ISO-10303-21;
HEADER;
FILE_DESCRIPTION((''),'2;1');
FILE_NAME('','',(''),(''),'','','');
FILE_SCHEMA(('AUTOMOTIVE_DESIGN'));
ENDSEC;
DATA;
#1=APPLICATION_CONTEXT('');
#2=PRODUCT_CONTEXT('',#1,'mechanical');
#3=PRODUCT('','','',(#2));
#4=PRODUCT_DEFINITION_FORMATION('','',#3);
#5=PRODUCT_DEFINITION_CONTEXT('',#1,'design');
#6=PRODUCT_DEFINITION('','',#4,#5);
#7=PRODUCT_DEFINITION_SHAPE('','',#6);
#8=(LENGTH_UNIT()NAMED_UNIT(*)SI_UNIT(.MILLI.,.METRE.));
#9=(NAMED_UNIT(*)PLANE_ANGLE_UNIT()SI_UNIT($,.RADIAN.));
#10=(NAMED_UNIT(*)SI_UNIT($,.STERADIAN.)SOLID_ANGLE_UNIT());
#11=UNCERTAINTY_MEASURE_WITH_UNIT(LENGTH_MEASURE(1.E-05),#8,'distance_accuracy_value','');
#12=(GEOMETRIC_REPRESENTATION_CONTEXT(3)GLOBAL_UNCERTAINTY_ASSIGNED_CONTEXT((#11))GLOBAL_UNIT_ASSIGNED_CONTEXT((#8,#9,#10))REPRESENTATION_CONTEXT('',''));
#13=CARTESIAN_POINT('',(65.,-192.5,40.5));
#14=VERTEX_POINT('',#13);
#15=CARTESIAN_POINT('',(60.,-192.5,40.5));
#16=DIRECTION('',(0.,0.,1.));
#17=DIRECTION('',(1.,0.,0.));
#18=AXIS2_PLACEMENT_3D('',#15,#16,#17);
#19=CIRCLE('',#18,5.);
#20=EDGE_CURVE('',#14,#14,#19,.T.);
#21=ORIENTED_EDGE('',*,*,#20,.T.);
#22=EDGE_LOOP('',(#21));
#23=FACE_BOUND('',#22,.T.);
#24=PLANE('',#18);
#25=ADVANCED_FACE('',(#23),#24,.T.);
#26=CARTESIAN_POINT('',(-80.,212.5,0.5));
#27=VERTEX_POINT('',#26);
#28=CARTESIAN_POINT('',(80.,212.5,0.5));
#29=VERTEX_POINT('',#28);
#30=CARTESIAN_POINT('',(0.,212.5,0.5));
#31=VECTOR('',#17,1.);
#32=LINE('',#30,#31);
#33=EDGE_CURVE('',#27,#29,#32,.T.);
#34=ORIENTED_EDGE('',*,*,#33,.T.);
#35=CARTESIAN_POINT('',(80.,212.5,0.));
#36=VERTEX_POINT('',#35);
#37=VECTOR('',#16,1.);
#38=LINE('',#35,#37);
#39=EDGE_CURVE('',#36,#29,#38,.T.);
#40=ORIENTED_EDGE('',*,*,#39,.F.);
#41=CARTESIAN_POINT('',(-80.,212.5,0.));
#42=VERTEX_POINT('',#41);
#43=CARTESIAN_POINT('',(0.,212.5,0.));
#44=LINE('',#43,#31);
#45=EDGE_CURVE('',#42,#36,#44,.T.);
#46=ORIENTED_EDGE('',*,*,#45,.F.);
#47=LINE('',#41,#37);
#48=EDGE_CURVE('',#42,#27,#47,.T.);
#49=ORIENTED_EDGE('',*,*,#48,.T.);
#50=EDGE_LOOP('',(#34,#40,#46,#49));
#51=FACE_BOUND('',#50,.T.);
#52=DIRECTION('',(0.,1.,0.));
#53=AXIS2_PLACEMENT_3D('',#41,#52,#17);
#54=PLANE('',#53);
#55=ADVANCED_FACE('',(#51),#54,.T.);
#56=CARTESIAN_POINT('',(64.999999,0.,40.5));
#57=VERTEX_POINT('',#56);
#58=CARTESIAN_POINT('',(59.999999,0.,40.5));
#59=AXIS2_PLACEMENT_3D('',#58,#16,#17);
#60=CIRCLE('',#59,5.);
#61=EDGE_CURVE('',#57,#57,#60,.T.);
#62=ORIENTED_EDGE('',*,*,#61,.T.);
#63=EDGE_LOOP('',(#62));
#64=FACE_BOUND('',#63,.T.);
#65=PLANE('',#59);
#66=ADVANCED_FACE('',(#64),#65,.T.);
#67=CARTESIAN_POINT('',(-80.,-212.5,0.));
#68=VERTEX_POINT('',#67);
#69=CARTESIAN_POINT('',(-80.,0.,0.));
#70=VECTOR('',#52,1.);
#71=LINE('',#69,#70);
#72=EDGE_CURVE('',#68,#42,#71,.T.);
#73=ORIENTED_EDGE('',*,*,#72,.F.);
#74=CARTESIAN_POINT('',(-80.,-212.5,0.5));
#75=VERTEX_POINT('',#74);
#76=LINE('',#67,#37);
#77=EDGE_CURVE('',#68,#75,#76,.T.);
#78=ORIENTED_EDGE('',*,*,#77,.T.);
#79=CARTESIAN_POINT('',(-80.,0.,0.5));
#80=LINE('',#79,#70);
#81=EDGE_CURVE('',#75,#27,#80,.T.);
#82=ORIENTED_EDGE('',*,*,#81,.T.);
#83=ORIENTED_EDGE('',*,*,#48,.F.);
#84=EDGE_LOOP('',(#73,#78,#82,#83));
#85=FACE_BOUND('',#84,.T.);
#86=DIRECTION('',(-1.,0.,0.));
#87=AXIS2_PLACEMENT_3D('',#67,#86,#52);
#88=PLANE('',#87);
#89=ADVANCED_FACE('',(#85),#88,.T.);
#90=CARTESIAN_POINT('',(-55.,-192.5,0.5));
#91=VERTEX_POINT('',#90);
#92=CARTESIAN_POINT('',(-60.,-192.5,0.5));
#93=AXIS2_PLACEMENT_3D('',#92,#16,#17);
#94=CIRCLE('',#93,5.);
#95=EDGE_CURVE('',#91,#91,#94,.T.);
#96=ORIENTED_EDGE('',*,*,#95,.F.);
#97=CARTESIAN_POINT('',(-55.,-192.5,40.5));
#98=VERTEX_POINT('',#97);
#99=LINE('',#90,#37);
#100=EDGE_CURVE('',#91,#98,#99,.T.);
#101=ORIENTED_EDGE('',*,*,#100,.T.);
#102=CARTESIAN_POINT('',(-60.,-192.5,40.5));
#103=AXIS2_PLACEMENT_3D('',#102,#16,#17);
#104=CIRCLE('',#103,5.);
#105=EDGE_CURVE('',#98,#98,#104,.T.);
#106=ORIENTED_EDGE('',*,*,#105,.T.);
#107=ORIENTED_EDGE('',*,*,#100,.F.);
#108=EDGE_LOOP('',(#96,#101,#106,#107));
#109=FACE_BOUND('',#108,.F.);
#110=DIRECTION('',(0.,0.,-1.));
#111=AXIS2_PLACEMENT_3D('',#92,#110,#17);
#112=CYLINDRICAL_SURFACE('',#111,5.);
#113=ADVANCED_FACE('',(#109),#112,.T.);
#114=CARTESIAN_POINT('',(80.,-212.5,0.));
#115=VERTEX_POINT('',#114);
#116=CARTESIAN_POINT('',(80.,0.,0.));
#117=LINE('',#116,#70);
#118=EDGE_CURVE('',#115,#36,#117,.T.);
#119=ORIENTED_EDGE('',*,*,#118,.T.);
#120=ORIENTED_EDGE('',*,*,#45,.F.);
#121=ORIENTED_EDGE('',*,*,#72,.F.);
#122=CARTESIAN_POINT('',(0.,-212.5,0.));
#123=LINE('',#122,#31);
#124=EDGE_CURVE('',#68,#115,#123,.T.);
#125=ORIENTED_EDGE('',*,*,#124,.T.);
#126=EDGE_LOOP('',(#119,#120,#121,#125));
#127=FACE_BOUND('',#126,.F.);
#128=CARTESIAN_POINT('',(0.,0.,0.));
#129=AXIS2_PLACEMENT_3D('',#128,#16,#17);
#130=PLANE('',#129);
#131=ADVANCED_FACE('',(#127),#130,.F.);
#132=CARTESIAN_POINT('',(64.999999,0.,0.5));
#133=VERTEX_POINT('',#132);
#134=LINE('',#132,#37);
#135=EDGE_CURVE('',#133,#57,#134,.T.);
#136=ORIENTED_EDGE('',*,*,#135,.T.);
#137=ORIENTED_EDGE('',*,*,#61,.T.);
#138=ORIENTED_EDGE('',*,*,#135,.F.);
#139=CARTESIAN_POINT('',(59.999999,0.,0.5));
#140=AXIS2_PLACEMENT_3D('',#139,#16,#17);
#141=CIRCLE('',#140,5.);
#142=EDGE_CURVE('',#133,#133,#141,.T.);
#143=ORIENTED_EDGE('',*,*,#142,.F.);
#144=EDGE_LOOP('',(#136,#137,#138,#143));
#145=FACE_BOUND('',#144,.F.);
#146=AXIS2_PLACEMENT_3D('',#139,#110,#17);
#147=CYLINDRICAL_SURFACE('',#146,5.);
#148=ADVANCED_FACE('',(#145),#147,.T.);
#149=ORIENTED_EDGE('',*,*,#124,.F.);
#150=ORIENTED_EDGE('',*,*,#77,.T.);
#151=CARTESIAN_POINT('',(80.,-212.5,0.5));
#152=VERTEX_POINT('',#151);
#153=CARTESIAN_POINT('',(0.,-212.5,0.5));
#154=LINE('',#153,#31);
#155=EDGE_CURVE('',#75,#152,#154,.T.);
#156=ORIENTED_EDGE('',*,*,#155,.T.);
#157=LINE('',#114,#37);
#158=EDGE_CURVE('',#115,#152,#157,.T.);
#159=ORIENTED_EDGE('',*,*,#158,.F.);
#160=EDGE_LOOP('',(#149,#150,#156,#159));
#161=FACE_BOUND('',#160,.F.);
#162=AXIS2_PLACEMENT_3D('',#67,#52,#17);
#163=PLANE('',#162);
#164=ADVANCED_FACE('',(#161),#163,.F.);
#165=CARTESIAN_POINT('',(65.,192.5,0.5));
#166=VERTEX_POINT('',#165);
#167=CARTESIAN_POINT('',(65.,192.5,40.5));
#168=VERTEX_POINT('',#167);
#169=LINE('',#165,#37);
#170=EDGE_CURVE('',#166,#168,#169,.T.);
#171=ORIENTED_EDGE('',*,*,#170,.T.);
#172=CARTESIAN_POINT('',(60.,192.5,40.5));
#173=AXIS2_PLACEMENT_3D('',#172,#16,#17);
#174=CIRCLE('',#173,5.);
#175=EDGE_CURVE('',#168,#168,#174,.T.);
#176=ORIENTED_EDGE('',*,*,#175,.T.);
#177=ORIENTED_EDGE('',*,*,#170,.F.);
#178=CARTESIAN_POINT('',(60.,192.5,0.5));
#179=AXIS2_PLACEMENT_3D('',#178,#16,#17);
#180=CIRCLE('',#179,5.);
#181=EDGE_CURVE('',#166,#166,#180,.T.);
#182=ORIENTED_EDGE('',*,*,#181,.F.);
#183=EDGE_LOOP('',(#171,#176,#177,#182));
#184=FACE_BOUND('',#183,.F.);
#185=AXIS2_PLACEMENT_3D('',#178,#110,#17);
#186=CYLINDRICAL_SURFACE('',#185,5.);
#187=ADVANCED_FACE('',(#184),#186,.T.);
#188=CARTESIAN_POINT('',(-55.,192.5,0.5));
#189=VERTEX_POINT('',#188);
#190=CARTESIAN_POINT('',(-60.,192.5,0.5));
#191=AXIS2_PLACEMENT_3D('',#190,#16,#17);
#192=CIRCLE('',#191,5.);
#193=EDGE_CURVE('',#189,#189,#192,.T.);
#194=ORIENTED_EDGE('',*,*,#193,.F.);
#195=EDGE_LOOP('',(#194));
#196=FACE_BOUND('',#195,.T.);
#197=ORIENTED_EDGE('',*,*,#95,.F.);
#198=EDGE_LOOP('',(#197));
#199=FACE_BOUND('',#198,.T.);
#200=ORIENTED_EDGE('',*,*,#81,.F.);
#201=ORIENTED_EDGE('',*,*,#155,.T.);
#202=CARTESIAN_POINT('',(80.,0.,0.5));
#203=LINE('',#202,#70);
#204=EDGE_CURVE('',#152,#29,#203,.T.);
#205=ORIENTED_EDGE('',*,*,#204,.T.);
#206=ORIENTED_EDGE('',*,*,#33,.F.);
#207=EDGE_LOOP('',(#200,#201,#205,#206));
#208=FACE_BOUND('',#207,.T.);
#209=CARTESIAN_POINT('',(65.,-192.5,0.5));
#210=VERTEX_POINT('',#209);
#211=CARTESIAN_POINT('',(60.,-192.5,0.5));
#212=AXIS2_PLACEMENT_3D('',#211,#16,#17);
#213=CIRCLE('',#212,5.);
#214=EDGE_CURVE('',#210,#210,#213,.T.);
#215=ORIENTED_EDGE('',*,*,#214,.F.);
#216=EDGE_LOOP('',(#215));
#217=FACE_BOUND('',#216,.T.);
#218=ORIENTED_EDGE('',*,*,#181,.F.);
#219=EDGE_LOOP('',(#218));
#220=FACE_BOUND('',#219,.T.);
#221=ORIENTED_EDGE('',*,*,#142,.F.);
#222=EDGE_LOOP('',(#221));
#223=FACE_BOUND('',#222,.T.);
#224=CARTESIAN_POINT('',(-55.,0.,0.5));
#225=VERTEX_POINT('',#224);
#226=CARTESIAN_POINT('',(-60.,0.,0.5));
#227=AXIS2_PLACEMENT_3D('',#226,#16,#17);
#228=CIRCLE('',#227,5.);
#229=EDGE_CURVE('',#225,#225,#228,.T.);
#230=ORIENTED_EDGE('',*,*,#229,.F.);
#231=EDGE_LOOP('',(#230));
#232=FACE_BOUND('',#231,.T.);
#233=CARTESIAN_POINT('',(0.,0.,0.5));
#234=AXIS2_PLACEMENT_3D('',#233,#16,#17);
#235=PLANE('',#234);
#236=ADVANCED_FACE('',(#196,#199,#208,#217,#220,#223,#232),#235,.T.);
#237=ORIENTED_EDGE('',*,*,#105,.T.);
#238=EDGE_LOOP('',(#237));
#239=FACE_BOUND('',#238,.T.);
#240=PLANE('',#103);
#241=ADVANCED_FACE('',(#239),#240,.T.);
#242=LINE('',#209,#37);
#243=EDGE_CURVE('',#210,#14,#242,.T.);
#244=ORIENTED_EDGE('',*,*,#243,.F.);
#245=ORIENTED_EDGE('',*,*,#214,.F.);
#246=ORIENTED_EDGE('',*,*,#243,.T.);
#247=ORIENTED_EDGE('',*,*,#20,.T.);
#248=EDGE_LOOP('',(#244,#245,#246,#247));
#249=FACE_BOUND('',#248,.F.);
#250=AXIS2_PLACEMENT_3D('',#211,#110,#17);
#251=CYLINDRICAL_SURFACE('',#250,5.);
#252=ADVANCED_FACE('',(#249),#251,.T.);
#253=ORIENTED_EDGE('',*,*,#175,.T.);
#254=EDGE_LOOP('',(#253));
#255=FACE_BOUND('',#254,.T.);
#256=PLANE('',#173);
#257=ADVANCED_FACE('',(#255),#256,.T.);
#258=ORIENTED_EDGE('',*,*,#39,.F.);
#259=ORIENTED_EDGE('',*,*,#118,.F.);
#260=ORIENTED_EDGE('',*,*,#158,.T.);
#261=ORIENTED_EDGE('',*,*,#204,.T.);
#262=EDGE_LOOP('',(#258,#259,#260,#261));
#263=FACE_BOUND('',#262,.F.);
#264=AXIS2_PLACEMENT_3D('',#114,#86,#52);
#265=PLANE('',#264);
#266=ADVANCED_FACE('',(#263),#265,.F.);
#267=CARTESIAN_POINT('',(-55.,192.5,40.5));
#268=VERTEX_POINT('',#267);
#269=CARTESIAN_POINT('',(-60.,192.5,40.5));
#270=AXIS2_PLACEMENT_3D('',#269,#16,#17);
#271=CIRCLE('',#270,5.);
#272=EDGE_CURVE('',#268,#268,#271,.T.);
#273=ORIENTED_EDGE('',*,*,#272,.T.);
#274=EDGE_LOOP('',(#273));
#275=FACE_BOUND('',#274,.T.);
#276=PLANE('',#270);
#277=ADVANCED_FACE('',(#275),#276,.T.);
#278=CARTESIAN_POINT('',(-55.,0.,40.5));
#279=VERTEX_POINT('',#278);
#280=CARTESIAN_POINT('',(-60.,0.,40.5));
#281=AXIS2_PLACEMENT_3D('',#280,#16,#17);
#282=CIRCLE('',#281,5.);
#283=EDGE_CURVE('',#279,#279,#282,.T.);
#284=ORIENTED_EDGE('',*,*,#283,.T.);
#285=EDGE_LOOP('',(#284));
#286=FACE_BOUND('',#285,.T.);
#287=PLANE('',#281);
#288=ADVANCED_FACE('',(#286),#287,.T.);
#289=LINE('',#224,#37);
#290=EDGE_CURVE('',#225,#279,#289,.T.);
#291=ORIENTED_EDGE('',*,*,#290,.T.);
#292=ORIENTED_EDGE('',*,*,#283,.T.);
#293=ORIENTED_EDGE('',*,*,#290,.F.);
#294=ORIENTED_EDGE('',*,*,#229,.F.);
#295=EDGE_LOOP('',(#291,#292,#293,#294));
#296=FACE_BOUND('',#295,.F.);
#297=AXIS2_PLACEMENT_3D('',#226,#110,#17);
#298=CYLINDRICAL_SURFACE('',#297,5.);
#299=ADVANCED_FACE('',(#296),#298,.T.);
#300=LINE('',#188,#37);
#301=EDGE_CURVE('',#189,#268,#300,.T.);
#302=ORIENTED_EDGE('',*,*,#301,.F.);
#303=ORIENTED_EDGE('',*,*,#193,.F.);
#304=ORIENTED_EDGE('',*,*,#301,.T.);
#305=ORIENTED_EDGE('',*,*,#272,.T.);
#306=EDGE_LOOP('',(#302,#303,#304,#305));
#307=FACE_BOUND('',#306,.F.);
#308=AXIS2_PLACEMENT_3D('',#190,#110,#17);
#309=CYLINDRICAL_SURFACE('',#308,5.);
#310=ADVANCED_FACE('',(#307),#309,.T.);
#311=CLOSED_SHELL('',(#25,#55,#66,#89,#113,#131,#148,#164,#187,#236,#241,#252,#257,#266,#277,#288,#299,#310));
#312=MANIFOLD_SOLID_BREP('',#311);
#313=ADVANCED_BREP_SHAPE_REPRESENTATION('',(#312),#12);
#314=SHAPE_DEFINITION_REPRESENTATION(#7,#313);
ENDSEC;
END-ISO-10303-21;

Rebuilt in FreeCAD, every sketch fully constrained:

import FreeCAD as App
import Part
import Sketcher
from FreeCAD import Vector
Q = App.Units.Quantity


def add_polygon(sketch, points):
    """Adds a closed chain of lines whose ends are joined by coincident constraints."""
    first, n = sketch.GeometryCount, len(points)
    for a, b in zip(points, points[1:] + points[:1]):
        sketch.addGeometry(Part.LineSegment(App.Vector(*a, 0), App.Vector(*b, 0)), False)
    for i in range(n):
        sketch.addConstraint(Sketcher.Constraint("Coincident", first + i, 2, first + (i + 1) % n, 1))

doc = App.newDocument("Part")
params = doc.addObject("Spreadsheet::Sheet", "Params")
for row, (alias, value) in enumerate([
    ("sketch1_width", "160 mm"),
    ("sketch1_height", "425 mm"),
    ("pad1_length", "0.5 mm"),
    ("sketch2_diameter", "10 mm"),
    ("pad2_length", "40 mm"),
], start=1):
    params.set(f"A{row}", alias)
    params.set(f"B{row}", "=" + value)
    params.setAlias(f"B{row}", alias)

body = doc.addObject("PartDesign::Body", "Body")

sketch1 = body.newObject("Sketcher::SketchObject", "Sketch")
sketch1.AttachmentSupport = (doc.getObject("XY_Plane"), [""])
sketch1.MapMode = "FlatFace"
add_polygon(sketch1, [(-80, 212), (-80, -212), (80, -212), (80, 212)])
sketch1.addConstraint(Sketcher.Constraint("Vertical", 0))
sketch1.addConstraint(Sketcher.Constraint("Horizontal", 1))
sketch1.addConstraint(Sketcher.Constraint("Vertical", 2))
sketch1.addConstraint(Sketcher.Constraint("Horizontal", 3))
sketch1.addConstraint(Sketcher.Constraint("Symmetric", 0, 2, 2, 2, -1, 1))
sketch1.addConstraint(Sketcher.Constraint("DistanceX", 1, 1, 1, 2, Q("160 mm")))
sketch1.addConstraint(Sketcher.Constraint("DistanceY", 0, 2, 0, 1, Q("425 mm")))
sketch1.setExpression("Constraints[9]", "Params.sketch1_width")
sketch1.setExpression("Constraints[10]", "Params.sketch1_height")
pad1 = body.newObject("PartDesign::Pad", "Pad")
pad1.Profile = sketch1
pad1.setExpression("Length", "Params.pad1_length")

sketch2 = body.newObject("Sketcher::SketchObject", "Sketch001")
sketch2.AttachmentSupport = (doc.getObject("XY_Plane"), [""])
sketch2.MapMode = "FlatFace"
sketch2.AttachmentOffset = App.Placement(Vector(0, 0, 0.5), App.Rotation())
sketch2.addGeometry(Part.Circle(Vector(-60, 192, 0), Vector(0, 0, 1), 5), False)
sketch2.addGeometry(Part.Circle(Vector(60, 192, 0), Vector(0, 0, 1), 5), False)
sketch2.addGeometry(Part.Circle(Vector(60, -192, 0), Vector(0, 0, 1), 5), False)
sketch2.addGeometry(Part.Circle(Vector(-60, -192, 0), Vector(0, 0, 1), 5), False)
sketch2.addGeometry(Part.Circle(Vector(-60, 0, 0), Vector(0, 0, 1), 5), False)
sketch2.addGeometry(Part.Circle(Vector(60, 0, 0), Vector(0, 0, 1), 5), False)
sketch2.addConstraint(Sketcher.Constraint("Equal", 0, 1))
sketch2.addConstraint(Sketcher.Constraint("Equal", 1, 2))
sketch2.addConstraint(Sketcher.Constraint("Equal", 2, 3))
sketch2.addConstraint(Sketcher.Constraint("Equal", 3, 4))
sketch2.addConstraint(Sketcher.Constraint("Equal", 4, 5))
sketch2.addConstraint(Sketcher.Constraint("Symmetric", 0, 3, 2, 3, -1, 1))
sketch2.addConstraint(Sketcher.Constraint("Symmetric", 1, 3, 3, 3, -1, 1))
sketch2.addConstraint(Sketcher.Constraint("Symmetric", 4, 3, 5, 3, -1, 1))
sketch2.addConstraint(Sketcher.Constraint("Symmetric", 0, 3, 1, 3, -2))
sketch2.addConstraint(Sketcher.Constraint("PointOnObject", 4, 3, -1))
sketch2.addConstraint(Sketcher.Constraint("Vertical", 3, 3, 4, 3))
sketch2.addConstraint(Sketcher.Constraint("Diameter", 0, Q("10 mm")))
sketch2.addConstraint(Sketcher.Constraint("DistanceX", 0, 3, -1, 1, Q("60 mm")))
sketch2.addConstraint(Sketcher.Constraint("DistanceY", 2, 3, 1, 3, Q("385 mm")))
sketch2.setExpression("Constraints[11]", "Params.sketch2_diameter")
pad2 = body.newObject("PartDesign::Pad", "Pad001")
pad2.Profile = sketch2
pad2.setExpression("Length", "Params.pad2_length")

doc.recompute()
